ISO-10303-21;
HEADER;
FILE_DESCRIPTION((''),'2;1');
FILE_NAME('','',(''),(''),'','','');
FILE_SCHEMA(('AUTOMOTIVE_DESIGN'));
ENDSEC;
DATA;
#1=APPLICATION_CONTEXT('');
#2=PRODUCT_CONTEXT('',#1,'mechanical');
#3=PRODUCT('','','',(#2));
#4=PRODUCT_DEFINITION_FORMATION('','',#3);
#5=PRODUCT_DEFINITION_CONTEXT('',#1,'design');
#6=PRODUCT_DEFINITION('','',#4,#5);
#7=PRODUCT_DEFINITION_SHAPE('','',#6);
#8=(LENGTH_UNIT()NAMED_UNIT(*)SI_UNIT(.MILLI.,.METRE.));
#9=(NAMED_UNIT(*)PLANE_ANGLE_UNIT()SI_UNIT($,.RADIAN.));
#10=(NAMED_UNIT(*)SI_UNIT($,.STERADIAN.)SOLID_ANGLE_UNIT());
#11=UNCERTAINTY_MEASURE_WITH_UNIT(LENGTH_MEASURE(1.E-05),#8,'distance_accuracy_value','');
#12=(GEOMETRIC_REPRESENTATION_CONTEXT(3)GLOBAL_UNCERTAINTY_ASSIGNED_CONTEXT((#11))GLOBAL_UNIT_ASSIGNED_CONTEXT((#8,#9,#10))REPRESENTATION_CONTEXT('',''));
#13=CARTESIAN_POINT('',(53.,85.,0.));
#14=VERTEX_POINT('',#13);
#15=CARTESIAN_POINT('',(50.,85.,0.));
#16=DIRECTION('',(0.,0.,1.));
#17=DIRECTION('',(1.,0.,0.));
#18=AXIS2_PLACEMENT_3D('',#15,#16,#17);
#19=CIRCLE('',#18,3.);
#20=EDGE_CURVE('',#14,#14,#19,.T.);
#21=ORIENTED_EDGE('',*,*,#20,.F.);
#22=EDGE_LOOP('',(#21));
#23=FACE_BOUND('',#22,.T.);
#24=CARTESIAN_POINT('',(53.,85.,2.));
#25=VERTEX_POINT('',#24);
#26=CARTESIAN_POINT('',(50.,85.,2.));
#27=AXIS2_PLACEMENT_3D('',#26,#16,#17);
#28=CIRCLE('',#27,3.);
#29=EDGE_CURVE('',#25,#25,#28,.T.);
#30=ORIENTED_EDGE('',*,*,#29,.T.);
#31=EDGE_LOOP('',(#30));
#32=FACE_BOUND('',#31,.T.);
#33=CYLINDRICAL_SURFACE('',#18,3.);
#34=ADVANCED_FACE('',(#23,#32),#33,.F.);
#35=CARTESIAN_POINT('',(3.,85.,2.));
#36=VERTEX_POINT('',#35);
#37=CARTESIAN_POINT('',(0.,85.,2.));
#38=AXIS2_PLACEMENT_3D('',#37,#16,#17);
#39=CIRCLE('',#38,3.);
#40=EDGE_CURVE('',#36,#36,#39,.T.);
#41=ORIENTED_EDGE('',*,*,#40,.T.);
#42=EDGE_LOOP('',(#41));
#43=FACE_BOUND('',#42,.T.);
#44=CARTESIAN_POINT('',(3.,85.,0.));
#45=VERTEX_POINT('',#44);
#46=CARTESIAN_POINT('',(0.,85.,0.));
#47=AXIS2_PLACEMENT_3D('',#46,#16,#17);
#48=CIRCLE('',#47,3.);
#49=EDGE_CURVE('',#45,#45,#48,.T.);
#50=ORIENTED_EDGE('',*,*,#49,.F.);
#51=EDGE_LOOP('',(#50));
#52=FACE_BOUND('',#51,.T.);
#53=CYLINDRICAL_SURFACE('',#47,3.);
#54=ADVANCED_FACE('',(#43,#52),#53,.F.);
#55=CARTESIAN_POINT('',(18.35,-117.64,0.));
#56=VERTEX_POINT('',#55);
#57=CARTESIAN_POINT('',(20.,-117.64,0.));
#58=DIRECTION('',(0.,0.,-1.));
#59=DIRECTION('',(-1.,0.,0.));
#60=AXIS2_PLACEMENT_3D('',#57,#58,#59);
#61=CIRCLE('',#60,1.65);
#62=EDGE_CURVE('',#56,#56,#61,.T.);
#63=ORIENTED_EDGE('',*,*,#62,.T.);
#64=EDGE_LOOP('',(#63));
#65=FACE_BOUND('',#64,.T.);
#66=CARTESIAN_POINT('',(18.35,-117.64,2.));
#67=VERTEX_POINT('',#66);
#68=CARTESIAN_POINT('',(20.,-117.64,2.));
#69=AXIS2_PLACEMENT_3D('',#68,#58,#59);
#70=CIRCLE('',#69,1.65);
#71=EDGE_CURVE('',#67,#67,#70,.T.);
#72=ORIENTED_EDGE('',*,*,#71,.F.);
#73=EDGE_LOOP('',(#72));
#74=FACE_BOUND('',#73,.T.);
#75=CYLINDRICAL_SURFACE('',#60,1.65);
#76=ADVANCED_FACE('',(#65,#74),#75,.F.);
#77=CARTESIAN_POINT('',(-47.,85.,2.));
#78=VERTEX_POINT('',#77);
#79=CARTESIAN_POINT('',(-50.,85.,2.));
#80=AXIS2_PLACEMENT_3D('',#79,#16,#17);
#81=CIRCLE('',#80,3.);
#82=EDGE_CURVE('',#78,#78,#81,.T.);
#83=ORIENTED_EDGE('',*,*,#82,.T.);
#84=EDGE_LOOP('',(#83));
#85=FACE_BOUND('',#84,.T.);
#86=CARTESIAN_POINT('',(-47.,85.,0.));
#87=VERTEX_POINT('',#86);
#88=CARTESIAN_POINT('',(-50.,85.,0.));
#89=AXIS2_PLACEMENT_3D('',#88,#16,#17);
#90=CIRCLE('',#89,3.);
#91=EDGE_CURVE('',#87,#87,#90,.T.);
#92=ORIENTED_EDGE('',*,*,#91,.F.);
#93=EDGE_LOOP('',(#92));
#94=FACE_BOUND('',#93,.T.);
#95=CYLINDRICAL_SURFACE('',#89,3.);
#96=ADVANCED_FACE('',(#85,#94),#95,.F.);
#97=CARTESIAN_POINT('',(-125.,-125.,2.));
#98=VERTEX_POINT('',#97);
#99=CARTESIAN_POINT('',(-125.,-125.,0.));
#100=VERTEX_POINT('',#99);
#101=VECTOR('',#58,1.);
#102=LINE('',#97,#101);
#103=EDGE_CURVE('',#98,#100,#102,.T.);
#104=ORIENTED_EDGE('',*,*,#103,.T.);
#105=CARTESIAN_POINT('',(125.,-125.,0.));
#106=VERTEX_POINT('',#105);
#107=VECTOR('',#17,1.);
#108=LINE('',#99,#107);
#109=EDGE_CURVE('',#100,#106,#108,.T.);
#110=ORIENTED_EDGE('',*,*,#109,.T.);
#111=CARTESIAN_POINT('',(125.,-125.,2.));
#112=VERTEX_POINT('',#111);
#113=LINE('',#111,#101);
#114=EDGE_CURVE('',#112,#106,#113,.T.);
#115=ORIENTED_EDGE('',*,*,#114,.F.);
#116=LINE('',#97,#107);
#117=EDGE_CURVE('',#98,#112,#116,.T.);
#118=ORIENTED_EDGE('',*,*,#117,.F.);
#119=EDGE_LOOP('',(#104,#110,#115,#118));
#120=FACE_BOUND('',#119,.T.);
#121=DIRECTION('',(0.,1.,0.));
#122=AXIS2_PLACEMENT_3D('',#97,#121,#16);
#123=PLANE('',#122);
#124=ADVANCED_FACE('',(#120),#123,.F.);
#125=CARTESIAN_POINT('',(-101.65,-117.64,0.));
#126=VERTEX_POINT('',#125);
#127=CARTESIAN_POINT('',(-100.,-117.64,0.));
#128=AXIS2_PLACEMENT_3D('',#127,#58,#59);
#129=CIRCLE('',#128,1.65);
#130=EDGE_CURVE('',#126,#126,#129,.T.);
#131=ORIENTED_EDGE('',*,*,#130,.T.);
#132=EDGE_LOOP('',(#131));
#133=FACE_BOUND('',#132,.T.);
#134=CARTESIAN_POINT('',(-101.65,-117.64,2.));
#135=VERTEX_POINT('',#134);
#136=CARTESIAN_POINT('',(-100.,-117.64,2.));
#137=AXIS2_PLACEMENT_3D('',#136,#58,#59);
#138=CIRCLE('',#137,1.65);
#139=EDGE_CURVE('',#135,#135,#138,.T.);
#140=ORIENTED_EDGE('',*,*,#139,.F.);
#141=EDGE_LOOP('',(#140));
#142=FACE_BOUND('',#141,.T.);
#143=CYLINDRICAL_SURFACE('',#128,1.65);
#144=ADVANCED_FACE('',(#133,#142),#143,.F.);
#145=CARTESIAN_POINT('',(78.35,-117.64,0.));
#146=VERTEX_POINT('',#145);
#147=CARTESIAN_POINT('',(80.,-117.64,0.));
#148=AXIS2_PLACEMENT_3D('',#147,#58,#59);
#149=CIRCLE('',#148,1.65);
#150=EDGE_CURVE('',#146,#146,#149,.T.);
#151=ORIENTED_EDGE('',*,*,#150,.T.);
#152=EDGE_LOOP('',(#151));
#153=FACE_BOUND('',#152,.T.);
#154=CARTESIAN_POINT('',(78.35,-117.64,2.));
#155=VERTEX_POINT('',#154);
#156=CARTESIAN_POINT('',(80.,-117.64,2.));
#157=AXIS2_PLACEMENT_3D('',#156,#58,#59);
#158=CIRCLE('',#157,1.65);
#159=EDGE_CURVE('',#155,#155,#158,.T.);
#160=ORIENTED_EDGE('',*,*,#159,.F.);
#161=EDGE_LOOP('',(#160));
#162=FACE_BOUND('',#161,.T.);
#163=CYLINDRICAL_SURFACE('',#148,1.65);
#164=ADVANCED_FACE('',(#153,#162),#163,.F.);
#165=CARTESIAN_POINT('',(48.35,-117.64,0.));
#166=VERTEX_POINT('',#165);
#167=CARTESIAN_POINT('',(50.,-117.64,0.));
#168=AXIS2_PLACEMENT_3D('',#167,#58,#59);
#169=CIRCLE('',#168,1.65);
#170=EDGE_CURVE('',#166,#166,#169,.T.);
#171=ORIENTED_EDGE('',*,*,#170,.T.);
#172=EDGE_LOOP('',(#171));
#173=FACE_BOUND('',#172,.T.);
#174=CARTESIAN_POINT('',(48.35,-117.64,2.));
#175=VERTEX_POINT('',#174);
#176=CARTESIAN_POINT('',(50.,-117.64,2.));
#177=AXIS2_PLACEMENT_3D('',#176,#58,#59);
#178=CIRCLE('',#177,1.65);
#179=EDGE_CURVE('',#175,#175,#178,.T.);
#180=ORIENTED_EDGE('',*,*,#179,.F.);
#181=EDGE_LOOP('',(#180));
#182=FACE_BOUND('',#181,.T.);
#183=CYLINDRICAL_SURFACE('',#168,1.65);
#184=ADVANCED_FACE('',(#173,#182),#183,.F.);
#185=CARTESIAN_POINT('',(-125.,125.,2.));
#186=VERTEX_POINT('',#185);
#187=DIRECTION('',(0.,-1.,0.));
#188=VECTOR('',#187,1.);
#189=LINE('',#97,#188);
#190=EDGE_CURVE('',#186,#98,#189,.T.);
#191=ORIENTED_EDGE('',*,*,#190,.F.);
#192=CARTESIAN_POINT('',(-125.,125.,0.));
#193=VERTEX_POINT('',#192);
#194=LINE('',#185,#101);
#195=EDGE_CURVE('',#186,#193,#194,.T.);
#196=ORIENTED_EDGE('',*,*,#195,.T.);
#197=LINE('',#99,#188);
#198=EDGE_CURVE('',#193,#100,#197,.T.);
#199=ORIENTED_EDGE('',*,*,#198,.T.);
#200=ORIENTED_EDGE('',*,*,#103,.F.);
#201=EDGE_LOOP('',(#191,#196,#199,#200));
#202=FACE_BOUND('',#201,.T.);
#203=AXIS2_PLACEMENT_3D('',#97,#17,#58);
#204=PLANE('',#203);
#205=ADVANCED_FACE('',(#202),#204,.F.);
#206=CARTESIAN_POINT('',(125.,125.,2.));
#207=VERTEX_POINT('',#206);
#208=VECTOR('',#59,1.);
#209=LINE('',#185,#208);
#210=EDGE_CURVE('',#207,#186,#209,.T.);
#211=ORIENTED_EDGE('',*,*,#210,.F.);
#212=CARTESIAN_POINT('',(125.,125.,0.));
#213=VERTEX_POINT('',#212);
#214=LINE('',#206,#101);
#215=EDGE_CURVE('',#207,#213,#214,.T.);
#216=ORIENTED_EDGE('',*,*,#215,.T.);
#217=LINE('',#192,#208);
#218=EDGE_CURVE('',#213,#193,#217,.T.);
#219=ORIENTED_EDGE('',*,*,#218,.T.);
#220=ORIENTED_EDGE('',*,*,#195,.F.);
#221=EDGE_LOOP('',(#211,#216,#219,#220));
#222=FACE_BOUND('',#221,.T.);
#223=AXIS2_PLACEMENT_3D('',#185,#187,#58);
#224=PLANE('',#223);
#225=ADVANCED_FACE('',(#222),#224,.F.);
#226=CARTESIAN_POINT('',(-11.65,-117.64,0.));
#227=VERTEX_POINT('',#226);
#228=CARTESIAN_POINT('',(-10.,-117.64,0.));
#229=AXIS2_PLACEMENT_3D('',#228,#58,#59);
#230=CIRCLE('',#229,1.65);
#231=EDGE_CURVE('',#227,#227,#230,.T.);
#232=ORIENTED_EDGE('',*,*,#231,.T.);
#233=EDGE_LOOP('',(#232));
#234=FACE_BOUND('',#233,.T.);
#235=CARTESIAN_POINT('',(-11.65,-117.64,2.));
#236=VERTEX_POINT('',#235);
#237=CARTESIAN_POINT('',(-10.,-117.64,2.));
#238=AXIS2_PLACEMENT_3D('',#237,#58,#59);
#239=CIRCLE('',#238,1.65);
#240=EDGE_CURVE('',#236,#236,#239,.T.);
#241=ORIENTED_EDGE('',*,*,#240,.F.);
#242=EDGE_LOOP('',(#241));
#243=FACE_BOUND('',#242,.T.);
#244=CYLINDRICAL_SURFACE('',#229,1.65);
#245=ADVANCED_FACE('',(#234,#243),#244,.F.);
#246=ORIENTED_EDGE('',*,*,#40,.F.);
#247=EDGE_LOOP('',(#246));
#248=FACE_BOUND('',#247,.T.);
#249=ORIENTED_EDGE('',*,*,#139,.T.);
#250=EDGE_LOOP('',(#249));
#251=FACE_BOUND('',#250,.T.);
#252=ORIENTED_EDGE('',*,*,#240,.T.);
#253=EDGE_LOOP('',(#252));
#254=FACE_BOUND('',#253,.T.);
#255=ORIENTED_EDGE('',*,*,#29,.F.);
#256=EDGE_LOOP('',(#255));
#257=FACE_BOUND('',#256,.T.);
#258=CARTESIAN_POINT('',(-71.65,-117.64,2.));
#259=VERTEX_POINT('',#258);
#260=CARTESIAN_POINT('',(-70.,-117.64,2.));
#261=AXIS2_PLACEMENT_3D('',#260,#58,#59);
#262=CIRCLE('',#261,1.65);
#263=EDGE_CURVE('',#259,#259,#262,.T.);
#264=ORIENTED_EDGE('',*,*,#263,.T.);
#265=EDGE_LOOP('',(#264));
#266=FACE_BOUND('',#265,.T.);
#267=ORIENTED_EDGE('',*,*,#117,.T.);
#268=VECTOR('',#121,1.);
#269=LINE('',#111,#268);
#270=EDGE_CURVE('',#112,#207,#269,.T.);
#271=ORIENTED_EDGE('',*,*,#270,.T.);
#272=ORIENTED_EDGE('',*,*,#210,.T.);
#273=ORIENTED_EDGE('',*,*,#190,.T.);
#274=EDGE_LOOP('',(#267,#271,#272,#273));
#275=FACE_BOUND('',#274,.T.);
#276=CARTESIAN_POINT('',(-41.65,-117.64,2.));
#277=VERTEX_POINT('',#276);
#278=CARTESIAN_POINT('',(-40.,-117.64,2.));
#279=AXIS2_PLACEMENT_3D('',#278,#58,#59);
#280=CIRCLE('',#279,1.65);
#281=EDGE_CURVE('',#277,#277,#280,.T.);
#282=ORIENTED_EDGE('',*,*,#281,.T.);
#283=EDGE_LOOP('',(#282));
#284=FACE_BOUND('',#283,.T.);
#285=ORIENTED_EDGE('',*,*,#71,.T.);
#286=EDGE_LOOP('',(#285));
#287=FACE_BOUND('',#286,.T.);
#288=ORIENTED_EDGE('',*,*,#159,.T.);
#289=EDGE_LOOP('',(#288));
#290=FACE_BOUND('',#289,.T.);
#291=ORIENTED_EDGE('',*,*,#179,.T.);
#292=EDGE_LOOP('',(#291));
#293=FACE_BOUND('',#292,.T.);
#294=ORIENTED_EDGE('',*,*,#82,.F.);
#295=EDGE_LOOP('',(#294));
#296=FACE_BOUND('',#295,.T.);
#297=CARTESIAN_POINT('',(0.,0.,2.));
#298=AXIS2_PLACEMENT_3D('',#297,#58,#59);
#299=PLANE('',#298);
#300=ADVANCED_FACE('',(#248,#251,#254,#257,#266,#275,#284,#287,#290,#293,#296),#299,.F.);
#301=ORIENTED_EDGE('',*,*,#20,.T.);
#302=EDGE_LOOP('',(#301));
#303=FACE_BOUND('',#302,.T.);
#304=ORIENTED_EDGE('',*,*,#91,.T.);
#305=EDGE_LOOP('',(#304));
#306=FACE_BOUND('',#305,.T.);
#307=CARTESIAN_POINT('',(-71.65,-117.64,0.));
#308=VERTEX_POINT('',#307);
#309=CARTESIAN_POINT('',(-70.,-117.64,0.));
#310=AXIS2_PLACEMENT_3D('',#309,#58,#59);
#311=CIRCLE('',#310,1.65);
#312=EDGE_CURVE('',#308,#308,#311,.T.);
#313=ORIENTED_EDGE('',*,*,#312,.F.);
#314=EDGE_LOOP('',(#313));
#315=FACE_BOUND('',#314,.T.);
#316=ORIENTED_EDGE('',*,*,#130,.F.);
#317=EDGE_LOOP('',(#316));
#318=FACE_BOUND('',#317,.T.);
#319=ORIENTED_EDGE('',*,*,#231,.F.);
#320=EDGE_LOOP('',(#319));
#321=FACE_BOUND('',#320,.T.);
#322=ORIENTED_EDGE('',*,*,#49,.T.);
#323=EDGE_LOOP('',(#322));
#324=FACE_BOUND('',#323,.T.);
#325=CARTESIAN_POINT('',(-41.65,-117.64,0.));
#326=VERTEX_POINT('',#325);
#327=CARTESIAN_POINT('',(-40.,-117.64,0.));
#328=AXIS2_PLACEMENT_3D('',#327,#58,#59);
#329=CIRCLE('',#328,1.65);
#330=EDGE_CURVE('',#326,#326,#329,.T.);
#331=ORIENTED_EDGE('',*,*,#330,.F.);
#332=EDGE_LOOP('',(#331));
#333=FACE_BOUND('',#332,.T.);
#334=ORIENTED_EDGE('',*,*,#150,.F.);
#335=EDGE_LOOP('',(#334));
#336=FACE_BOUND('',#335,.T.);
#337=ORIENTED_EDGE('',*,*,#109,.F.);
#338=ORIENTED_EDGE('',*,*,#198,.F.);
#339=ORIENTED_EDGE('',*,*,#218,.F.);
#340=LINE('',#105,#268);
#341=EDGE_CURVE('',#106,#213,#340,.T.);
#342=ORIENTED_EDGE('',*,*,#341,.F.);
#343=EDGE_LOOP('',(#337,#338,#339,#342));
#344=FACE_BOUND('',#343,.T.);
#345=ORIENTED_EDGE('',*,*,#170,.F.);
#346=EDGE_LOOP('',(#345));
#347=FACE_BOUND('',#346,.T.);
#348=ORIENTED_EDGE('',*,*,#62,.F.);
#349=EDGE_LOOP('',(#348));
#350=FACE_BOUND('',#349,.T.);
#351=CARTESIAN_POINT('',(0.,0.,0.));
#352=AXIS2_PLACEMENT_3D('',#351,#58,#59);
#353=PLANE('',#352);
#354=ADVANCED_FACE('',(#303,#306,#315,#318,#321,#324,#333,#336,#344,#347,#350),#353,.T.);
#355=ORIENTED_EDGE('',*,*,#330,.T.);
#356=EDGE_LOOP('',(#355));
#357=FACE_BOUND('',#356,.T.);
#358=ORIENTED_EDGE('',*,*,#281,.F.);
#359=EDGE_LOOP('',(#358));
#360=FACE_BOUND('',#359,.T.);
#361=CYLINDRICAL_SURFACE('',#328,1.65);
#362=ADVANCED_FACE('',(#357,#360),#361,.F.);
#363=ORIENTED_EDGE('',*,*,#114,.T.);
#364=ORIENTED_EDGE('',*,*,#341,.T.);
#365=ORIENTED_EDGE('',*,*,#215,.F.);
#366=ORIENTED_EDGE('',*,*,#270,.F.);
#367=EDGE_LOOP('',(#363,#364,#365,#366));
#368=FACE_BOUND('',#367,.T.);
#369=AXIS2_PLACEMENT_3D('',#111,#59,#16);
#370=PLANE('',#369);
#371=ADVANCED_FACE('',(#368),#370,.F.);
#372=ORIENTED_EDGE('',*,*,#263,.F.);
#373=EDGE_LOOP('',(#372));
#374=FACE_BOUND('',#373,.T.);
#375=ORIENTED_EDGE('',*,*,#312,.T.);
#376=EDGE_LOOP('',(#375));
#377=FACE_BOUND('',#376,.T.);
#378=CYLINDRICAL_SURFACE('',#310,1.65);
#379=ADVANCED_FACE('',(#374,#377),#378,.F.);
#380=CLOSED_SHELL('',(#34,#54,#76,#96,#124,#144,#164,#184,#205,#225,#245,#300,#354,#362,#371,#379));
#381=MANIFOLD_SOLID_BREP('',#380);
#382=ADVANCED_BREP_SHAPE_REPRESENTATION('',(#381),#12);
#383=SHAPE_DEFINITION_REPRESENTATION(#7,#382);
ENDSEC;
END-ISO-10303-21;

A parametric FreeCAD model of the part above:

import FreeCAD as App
import Part
import Sketcher


def add_polygon(sketch, points):
    """Adds a closed chain of lines whose ends are joined by coincident constraints."""
    first, n = sketch.GeometryCount, len(points)
    for a, b in zip(points, points[1:] + points[:1]):
        sketch.addGeometry(Part.LineSegment(App.Vector(*a, 0), App.Vector(*b, 0)), False)
    for i in range(n):
        sketch.addConstraint(Sketcher.Constraint("Coincident", first + i, 2, first + (i + 1) % n, 1))

doc = App.newDocument("Part")
body = doc.addObject("PartDesign::Body", "Body")

sketch1 = body.newObject("Sketcher::SketchObject", "Sketch")
sketch1.AttachmentSupport = (doc.getObject("XY_Plane"), [""])
sketch1.MapMode = "FlatFace"
add_polygon(sketch1, [(-125, 125), (-125, -125), (125, -125), (125, 125)])
sketch1.addConstraint(Sketcher.Constraint("Vertical", 0))
sketch1.addConstraint(Sketcher.Constraint("Horizontal", 1))
sketch1.addConstraint(Sketcher.Constraint("Vertical", 2))
sketch1.addConstraint(Sketcher.Constraint("Horizontal", 3))
sketch1.addConstraint(Sketcher.Constraint("Symmetric", 0, 2, 2, 2, -1, 1))
sketch1.addConstraint(Sketcher.Constraint("Equal", 3, 0))
sketch1.addConstraint(Sketcher.Constraint("DistanceX", 1, 1, 1, 2, 250.0))
pad1 = body.newObject("PartDesign::Pad", "Pad")
pad1.Profile = sketch1
pad1.Length = 2

sketch2 = body.newObject("Sketcher::SketchObject", "Sketch001")
sketch2.AttachmentSupport = (doc.getObject("XY_Plane"), [""])
sketch2.MapMode = "FlatFace"
sketch2.AttachmentOffset = App.Placement(App.Vector(0, 0, 2), App.Rotation())
sketch2.addGeometry(Part.Circle(App.Vector(0, 85, 0), App.Vector(0, 0, 1), 3), False)
sketch2.addGeometry(Part.Circle(App.Vector(-50, 85, 0), App.Vector(0, 0, 1), 3), False)
sketch2.addGeometry(Part.Circle(App.Vector(50, 85, 0), App.Vector(0, 0, 1), 3), False)
sketch2.addConstraint(Sketcher.Constraint("Equal", 0, 1))
sketch2.addConstraint(Sketcher.Constraint("Equal", 1, 2))
sketch2.addConstraint(Sketcher.Constraint("Symmetric", 1, 3, 2, 3, -2))
sketch2.addConstraint(Sketcher.Constraint("PointOnObject", 0, 3, -2))
sketch2.addConstraint(Sketcher.Constraint("Horizontal", 0, 3, 1, 3))
sketch2.addConstraint(Sketcher.Constraint("Diameter", 0, 6.0))
sketch2.addConstraint(Sketcher.Constraint("DistanceY", -1, 1, 0, 3, 85.0))
sketch2.addConstraint(Sketcher.Constraint("DistanceX", 1, 3, -1, 1, 50.0))
pocket1 = body.newObject("PartDesign::Pocket", "Pocket")
pocket1.Profile = sketch2
pocket1.Type = "ThroughAll"

sketch3 = body.newObject("Sketcher::SketchObject", "Sketch002")
sketch3.AttachmentSupport = (doc.getObject("XY_Plane"), [""])
sketch3.MapMode = "FlatFace"
sketch3.addGeometry(Part.Circle(App.Vector(80, -117.6, 0), App.Vector(0, 0, 1), 1.6), False)
sketch3.addGeometry(Part.Circle(App.Vector(50, -117.6, 0), App.Vector(0, 0, 1), 1.6), False)
sketch3.addGeometry(Part.Circle(App.Vector(20, -117.6, 0), App.Vector(0, 0, 1), 1.6), False)
sketch3.addGeometry(Part.Circle(App.Vector(-10, -117.6, 0), App.Vector(0, 0, 1), 1.6), False)
sketch3.addGeometry(Part.Circle(App.Vector(-40, -117.6, 0), App.Vector(0, 0, 1), 1.6), False)
sketch3.addGeometry(Part.Circle(App.Vector(-70, -117.6, 0), App.Vector(0, 0, 1), 1.6), False)
sketch3.addGeometry(Part.Circle(App.Vector(-100, -117.6, 0), App.Vector(0, 0, 1), 1.6), False)
sketch3.addConstraint(Sketcher.Constraint("Equal", 0, 1))
sketch3.addConstraint(Sketcher.Constraint("Equal", 1, 2))
sketch3.addConstraint(Sketcher.Constraint("Equal", 2, 3))
sketch3.addConstraint(Sketcher.Constraint("Equal", 3, 4))
sketch3.addConstraint(Sketcher.Constraint("Equal", 4, 5))
sketch3.addConstraint(Sketcher.Constraint("Equal", 5, 6))
sketch3.addConstraint(Sketcher.Constraint("Horizontal", 0, 3, 1, 3))
sketch3.addConstraint(Sketcher.Constraint("Horizontal", 1, 3, 2, 3))
sketch3.addConstraint(Sketcher.Constraint("Horizontal", 2, 3, 3, 3))
sketch3.addConstraint(Sketcher.Constraint("Horizontal", 3, 3, 4, 3))
sketch3.addConstraint(Sketcher.Constraint("Horizontal", 4, 3, 5, 3))
sketch3.addConstraint(Sketcher.Constraint("Horizontal", 5, 3, 6, 3))
sketch3.addConstraint(Sketcher.Constraint("Diameter", 0, 3.3))
sketch3.addConstraint(Sketcher.Constraint("DistanceX", -1, 1, 0, 3, 80.0))
sketch3.addConstraint(Sketcher.Constraint("DistanceX", -1, 1, 1, 3, 50.0))
sketch3.addConstraint(Sketcher.Constraint("DistanceX", -1, 1, 2, 3, 20.0))
sketch3.addConstraint(Sketcher.Constraint("DistanceX", 3, 3, -1, 1, 10.0))
sketch3.addConstraint(Sketcher.Constraint("DistanceX", 4, 3, -1, 1, 40.0))
sketch3.addConstraint(Sketcher.Constraint("DistanceX", 5, 3, -1, 1, 70.0))
sketch3.addConstraint(Sketcher.Constraint("DistanceX", 6, 3, -1, 1, 100.0))
sketch3.addConstraint(Sketcher.Constraint("DistanceY", 0, 3, -1, 1, 117.64))
doc.recompute()
hole = body.newObject("PartDesign::Hole", "Hole")
hole.Profile = sketch3
hole.ThreadType = "None"
hole.Diameter = 3.3
hole.DepthType = "ThroughAll"
hole.Reversed = True

doc.recompute()
